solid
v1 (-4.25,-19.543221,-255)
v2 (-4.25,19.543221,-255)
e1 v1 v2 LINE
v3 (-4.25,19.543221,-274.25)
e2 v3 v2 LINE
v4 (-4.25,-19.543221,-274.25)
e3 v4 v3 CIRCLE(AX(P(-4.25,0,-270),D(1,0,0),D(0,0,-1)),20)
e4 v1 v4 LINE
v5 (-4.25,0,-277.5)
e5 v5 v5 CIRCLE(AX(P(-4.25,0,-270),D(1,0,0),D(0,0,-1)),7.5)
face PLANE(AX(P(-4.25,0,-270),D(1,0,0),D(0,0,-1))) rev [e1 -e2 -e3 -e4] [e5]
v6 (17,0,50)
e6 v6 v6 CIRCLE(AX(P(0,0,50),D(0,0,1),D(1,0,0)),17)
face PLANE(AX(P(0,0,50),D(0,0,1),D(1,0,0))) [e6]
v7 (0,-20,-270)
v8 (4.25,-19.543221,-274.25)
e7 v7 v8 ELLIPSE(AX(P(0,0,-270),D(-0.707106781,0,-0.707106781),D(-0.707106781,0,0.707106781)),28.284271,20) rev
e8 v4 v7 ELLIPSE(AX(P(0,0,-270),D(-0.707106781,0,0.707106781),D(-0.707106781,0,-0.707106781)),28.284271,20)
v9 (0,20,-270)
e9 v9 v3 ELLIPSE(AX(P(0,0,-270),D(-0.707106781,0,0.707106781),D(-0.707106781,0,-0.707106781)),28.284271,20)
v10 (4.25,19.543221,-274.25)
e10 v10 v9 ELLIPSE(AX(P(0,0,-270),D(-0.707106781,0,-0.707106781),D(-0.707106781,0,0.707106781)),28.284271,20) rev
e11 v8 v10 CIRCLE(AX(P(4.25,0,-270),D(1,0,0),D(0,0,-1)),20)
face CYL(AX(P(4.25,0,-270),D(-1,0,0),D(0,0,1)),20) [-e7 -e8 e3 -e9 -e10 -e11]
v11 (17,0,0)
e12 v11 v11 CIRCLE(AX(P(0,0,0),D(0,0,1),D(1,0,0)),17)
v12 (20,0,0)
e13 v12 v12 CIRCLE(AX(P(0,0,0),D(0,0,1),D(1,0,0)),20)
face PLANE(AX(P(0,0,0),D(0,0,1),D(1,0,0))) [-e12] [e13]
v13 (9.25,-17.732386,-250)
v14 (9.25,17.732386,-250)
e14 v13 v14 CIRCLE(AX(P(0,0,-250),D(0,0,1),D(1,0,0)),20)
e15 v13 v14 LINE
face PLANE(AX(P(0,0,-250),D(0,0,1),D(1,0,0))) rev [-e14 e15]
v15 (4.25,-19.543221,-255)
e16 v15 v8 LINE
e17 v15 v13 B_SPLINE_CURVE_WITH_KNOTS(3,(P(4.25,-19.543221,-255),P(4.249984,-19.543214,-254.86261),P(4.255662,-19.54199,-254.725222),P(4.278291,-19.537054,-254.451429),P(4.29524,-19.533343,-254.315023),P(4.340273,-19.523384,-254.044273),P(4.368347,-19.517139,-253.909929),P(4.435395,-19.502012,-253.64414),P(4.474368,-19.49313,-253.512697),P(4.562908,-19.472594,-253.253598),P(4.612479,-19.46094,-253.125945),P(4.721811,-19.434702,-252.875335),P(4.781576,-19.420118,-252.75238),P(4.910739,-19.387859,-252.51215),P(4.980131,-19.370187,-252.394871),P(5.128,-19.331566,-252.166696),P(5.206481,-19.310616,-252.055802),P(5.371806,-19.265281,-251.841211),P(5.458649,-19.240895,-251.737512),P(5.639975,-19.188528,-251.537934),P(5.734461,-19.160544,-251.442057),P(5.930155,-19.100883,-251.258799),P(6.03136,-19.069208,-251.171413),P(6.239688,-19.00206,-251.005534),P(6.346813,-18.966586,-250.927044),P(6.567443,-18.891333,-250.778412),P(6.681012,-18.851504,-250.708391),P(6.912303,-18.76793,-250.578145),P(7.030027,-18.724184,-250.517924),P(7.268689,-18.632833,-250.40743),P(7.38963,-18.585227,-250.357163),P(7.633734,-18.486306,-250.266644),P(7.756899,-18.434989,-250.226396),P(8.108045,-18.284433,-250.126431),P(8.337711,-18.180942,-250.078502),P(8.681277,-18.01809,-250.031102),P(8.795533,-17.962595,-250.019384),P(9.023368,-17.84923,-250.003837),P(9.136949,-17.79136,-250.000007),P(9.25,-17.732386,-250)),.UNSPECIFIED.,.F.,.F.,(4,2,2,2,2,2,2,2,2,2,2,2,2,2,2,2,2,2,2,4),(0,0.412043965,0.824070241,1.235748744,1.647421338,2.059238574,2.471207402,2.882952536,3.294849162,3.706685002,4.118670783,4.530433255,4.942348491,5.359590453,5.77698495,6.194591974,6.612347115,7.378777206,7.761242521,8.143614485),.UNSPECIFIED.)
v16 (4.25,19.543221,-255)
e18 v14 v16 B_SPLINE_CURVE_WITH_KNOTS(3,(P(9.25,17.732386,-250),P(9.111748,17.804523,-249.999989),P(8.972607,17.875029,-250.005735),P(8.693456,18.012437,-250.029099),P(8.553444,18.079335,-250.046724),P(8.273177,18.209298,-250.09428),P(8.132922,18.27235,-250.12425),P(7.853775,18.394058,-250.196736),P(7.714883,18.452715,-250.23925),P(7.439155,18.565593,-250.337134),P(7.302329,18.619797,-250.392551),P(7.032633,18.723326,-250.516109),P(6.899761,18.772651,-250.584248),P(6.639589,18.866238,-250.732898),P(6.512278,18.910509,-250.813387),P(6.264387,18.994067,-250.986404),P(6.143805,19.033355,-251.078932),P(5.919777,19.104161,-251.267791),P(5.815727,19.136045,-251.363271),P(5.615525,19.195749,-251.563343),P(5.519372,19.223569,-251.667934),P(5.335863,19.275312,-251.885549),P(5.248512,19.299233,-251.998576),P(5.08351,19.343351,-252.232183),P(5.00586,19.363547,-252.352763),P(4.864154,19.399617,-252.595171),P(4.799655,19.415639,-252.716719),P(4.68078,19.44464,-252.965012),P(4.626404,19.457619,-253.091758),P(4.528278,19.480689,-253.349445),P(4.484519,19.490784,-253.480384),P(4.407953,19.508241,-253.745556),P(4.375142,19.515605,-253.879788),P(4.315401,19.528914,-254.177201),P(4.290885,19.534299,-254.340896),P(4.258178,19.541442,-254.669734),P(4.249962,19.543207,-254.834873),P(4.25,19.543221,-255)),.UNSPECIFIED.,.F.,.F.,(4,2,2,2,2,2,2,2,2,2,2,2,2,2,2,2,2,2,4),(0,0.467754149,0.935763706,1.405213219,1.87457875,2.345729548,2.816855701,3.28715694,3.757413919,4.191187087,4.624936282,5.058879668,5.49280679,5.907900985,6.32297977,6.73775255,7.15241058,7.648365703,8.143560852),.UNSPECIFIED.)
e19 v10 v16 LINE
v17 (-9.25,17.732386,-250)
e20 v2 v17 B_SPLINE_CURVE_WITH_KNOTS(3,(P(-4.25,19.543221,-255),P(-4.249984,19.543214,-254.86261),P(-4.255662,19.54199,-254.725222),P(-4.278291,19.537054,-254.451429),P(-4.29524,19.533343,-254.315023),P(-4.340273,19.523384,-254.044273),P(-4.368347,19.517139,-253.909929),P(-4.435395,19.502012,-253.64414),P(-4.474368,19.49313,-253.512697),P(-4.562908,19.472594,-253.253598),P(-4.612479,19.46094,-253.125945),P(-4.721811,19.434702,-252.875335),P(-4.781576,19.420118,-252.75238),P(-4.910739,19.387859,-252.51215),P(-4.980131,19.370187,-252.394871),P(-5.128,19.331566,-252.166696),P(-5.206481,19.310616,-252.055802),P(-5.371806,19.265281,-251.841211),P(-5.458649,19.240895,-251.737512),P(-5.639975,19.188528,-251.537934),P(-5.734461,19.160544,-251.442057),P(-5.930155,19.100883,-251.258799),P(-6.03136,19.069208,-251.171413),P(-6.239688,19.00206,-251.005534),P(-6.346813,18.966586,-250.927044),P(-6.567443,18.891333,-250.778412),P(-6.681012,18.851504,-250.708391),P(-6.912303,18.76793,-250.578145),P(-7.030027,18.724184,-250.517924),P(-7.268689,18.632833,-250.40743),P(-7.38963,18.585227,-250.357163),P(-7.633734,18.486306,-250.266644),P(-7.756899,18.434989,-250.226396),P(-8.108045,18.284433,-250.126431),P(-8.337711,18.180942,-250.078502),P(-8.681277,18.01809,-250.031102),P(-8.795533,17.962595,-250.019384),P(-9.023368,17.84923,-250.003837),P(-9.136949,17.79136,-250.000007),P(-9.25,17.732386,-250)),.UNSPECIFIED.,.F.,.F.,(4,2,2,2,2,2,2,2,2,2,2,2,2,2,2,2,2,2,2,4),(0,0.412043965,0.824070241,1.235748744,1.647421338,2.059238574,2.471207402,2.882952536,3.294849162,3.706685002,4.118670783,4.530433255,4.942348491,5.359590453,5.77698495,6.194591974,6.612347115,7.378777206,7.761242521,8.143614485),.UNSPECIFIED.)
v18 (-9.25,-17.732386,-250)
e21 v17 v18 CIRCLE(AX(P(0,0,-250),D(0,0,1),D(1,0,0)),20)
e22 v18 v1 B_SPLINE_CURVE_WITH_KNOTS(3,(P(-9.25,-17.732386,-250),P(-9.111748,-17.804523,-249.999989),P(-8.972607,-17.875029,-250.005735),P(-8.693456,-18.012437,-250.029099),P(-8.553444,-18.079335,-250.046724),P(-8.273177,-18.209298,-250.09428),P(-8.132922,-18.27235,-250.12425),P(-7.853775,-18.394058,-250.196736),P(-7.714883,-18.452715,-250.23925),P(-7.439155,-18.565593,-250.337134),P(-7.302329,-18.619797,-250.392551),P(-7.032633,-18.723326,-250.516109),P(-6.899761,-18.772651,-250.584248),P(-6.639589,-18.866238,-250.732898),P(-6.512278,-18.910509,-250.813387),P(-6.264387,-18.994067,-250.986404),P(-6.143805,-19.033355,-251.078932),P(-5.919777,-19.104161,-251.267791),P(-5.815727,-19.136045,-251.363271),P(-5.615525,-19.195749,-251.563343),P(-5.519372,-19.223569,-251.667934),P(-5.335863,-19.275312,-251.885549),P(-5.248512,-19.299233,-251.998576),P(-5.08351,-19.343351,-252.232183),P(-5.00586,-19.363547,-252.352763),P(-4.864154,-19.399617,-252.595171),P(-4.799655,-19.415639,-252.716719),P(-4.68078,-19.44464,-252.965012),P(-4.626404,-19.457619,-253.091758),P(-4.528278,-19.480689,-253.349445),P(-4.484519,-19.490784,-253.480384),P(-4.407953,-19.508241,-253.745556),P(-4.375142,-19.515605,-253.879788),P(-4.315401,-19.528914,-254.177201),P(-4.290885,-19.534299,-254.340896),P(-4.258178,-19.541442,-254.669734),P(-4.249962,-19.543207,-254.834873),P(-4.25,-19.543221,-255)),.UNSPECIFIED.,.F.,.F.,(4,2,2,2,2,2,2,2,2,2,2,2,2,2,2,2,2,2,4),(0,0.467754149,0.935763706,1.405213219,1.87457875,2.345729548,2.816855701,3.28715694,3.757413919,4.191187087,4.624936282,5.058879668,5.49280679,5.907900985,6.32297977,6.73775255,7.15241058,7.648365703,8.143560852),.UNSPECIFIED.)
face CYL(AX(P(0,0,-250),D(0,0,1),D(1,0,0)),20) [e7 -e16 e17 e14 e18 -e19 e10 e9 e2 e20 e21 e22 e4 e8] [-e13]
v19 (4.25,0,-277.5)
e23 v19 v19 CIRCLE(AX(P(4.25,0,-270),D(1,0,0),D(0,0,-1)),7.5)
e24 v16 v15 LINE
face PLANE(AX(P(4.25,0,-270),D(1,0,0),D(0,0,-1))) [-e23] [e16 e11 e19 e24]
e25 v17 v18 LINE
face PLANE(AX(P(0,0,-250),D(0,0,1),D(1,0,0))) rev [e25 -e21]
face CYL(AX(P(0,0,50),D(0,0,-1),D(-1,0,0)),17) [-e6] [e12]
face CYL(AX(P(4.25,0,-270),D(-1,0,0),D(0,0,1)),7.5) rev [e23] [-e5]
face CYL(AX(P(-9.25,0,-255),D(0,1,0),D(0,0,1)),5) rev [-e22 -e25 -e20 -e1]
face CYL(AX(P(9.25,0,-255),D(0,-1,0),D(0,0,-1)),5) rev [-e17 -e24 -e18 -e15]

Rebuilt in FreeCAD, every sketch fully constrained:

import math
import FreeCAD as App
import Part
import Sketcher

V = App.Vector


def edges_at(feature, points):
    """Names of the edges that pass closest to the given points."""
    edges = feature.Shape.Edges
    near = lambda p: min(range(len(edges)), key=lambda i: edges[i].distToShape(Part.Vertex(*p))[0])
    return sorted({f"Edge{near(p) + 1}" for p in points})

doc = App.newDocument("Part")
body = doc.addObject("PartDesign::Body", "Body")

# Sketch on XY plane
sketch1 = body.newObject("Sketcher::SketchObject", "Sketch")
sketch1.AttachmentSupport = (doc.getObject("XY_Plane"), [""])
sketch1.MapMode = "FlatFace"
sketch1.addGeometry(Part.Circle(V(0, 0, 0), V(0, 0, 1), 20), False)
sketch1.addConstraint([
    Sketcher.Constraint("Coincident", 0, 3, -1, 1),
    Sketcher.Constraint("Diameter", 0, 40.0),
])
pad1 = body.newObject("PartDesign::Pad", "Pad")
pad1.Profile = sketch1
pad1.Length = 250
pad1.Reversed = True

# Sketch on XY plane
sketch2 = body.newObject("Sketcher::SketchObject", "Sketch001")
sketch2.AttachmentSupport = (doc.getObject("XY_Plane"), [""])
sketch2.MapMode = "FlatFace"
sketch2.addGeometry(Part.Circle(V(0, 0, 0), V(0, 0, 1), 17), False)
sketch2.addConstraint([
    Sketcher.Constraint("Coincident", 0, 3, -1, 1),
    Sketcher.Constraint("Diameter", 0, 34.0),
])
pad2 = body.newObject("PartDesign::Pad", "Pad001")
pad2.Profile = sketch2
pad2.Length = 50

# Sketch on YZ plane
sketch3 = body.newObject("Sketcher::SketchObject", "Sketch002")
sketch3.AttachmentSupport = (doc.getObject("YZ_Plane"), [""])
sketch3.MapMode = "FlatFace"
sketch3.addGeometry([
    Part.LineSegment(V(20, -270, 0), V(20, -250, 0)),  # 0
    Part.LineSegment(V(20, -250, 0), V(-20, -250, 0)),  # 1
    Part.LineSegment(V(-20, -250, 0), V(-20, -270, 0)),  # 2
    Part.ArcOfCircle(Part.Circle(V(0, -270, 0), V(0, 0, 1), 20), math.radians(180), math.radians(360)),  # 3
    Part.Circle(V(0, -270, 0), V(0, 0, 1), 8),  # 4
], False)
sketch3.addConstraint([
    Sketcher.Constraint("Coincident", 0, 2, 1, 1),
    Sketcher.Constraint("Coincident", 1, 2, 2, 1),
    Sketcher.Constraint("Tangent", 2, 2, 3, 1),
    Sketcher.Constraint("Tangent", 3, 2, 0, 1),
    Sketcher.Constraint("Vertical", 0),
    Sketcher.Constraint("Horizontal", 1),
    Sketcher.Constraint("Vertical", 2),
    Sketcher.Constraint("Coincident", 4, 3, 3, 3),
    Sketcher.Constraint("PointOnObject", 3, 3, -2),
    Sketcher.Constraint("Diameter", 4, 15.0),
    Sketcher.Constraint("Radius", 3, 20.0),
    Sketcher.Constraint("DistanceY", 0, 1, 0, 2, 20.0),
    Sketcher.Constraint("DistanceY", 3, 3, -1, 1, 270.0),
])
pad3 = body.newObject("PartDesign::Pad", "Pad002")
pad3.Profile = sketch3
pad3.Length = 8.5
pad3.Midplane = True

# Sketch on XY plane
sketch4 = body.newObject("Sketcher::SketchObject", "Sketch003")
sketch4.AttachmentSupport = (doc.getObject("XY_Plane"), [""])
sketch4.MapMode = "FlatFace"
sketch4.AttachmentOffset = App.Placement(V(0, 0, -250), App.Rotation())
sketch4.addGeometry([
    Part.LineSegment(V(55, 55, 0), V(55, -55, 0)),  # 0
    Part.LineSegment(V(55, -55, 0), V(-55, -55, 0)),  # 1
    Part.LineSegment(V(-55, -55, 0), V(-55, 55, 0)),  # 2
    Part.LineSegment(V(-55, 55, 0), V(55, 55, 0)),  # 3
    Part.Circle(V(0, 0, 0), V(0, 0, 1), 20),  # 4
], False)
sketch4.addConstraint([
    Sketcher.Constraint("Coincident", 0, 2, 1, 1),
    Sketcher.Constraint("Coincident", 1, 2, 2, 1),
    Sketcher.Constraint("Coincident", 2, 2, 3, 1),
    Sketcher.Constraint("Coincident", 3, 2, 0, 1),
    Sketcher.Constraint("Vertical", 0),
    Sketcher.Constraint("Horizontal", 1),
    Sketcher.Constraint("Vertical", 2),
    Sketcher.Constraint("Horizontal", 3),
    Sketcher.Constraint("Coincident", 4, 3, -1, 1),
    Sketcher.Constraint("Symmetric", 0, 2, 2, 2, -1, 1),
    Sketcher.Constraint("Equal", 3, 0),
    Sketcher.Constraint("Diameter", 4, 40.0),
    Sketcher.Constraint("DistanceX", 1, 2, 1, 1, 110.934),
])
pocket1 = body.newObject("PartDesign::Pocket", "Pocket")
pocket1.Profile = sketch4
pocket1.Type = "ThroughAll"
pocket1.Midplane = True
doc.recompute()

fillet = body.newObject("PartDesign::Fillet", "Fillet")
fillet.Base = (pocket1, edges_at(pocket1, [(4.25, 0, -250), (-4.25, 0, -250)]))
fillet.Radius = 5

doc.recompute()
